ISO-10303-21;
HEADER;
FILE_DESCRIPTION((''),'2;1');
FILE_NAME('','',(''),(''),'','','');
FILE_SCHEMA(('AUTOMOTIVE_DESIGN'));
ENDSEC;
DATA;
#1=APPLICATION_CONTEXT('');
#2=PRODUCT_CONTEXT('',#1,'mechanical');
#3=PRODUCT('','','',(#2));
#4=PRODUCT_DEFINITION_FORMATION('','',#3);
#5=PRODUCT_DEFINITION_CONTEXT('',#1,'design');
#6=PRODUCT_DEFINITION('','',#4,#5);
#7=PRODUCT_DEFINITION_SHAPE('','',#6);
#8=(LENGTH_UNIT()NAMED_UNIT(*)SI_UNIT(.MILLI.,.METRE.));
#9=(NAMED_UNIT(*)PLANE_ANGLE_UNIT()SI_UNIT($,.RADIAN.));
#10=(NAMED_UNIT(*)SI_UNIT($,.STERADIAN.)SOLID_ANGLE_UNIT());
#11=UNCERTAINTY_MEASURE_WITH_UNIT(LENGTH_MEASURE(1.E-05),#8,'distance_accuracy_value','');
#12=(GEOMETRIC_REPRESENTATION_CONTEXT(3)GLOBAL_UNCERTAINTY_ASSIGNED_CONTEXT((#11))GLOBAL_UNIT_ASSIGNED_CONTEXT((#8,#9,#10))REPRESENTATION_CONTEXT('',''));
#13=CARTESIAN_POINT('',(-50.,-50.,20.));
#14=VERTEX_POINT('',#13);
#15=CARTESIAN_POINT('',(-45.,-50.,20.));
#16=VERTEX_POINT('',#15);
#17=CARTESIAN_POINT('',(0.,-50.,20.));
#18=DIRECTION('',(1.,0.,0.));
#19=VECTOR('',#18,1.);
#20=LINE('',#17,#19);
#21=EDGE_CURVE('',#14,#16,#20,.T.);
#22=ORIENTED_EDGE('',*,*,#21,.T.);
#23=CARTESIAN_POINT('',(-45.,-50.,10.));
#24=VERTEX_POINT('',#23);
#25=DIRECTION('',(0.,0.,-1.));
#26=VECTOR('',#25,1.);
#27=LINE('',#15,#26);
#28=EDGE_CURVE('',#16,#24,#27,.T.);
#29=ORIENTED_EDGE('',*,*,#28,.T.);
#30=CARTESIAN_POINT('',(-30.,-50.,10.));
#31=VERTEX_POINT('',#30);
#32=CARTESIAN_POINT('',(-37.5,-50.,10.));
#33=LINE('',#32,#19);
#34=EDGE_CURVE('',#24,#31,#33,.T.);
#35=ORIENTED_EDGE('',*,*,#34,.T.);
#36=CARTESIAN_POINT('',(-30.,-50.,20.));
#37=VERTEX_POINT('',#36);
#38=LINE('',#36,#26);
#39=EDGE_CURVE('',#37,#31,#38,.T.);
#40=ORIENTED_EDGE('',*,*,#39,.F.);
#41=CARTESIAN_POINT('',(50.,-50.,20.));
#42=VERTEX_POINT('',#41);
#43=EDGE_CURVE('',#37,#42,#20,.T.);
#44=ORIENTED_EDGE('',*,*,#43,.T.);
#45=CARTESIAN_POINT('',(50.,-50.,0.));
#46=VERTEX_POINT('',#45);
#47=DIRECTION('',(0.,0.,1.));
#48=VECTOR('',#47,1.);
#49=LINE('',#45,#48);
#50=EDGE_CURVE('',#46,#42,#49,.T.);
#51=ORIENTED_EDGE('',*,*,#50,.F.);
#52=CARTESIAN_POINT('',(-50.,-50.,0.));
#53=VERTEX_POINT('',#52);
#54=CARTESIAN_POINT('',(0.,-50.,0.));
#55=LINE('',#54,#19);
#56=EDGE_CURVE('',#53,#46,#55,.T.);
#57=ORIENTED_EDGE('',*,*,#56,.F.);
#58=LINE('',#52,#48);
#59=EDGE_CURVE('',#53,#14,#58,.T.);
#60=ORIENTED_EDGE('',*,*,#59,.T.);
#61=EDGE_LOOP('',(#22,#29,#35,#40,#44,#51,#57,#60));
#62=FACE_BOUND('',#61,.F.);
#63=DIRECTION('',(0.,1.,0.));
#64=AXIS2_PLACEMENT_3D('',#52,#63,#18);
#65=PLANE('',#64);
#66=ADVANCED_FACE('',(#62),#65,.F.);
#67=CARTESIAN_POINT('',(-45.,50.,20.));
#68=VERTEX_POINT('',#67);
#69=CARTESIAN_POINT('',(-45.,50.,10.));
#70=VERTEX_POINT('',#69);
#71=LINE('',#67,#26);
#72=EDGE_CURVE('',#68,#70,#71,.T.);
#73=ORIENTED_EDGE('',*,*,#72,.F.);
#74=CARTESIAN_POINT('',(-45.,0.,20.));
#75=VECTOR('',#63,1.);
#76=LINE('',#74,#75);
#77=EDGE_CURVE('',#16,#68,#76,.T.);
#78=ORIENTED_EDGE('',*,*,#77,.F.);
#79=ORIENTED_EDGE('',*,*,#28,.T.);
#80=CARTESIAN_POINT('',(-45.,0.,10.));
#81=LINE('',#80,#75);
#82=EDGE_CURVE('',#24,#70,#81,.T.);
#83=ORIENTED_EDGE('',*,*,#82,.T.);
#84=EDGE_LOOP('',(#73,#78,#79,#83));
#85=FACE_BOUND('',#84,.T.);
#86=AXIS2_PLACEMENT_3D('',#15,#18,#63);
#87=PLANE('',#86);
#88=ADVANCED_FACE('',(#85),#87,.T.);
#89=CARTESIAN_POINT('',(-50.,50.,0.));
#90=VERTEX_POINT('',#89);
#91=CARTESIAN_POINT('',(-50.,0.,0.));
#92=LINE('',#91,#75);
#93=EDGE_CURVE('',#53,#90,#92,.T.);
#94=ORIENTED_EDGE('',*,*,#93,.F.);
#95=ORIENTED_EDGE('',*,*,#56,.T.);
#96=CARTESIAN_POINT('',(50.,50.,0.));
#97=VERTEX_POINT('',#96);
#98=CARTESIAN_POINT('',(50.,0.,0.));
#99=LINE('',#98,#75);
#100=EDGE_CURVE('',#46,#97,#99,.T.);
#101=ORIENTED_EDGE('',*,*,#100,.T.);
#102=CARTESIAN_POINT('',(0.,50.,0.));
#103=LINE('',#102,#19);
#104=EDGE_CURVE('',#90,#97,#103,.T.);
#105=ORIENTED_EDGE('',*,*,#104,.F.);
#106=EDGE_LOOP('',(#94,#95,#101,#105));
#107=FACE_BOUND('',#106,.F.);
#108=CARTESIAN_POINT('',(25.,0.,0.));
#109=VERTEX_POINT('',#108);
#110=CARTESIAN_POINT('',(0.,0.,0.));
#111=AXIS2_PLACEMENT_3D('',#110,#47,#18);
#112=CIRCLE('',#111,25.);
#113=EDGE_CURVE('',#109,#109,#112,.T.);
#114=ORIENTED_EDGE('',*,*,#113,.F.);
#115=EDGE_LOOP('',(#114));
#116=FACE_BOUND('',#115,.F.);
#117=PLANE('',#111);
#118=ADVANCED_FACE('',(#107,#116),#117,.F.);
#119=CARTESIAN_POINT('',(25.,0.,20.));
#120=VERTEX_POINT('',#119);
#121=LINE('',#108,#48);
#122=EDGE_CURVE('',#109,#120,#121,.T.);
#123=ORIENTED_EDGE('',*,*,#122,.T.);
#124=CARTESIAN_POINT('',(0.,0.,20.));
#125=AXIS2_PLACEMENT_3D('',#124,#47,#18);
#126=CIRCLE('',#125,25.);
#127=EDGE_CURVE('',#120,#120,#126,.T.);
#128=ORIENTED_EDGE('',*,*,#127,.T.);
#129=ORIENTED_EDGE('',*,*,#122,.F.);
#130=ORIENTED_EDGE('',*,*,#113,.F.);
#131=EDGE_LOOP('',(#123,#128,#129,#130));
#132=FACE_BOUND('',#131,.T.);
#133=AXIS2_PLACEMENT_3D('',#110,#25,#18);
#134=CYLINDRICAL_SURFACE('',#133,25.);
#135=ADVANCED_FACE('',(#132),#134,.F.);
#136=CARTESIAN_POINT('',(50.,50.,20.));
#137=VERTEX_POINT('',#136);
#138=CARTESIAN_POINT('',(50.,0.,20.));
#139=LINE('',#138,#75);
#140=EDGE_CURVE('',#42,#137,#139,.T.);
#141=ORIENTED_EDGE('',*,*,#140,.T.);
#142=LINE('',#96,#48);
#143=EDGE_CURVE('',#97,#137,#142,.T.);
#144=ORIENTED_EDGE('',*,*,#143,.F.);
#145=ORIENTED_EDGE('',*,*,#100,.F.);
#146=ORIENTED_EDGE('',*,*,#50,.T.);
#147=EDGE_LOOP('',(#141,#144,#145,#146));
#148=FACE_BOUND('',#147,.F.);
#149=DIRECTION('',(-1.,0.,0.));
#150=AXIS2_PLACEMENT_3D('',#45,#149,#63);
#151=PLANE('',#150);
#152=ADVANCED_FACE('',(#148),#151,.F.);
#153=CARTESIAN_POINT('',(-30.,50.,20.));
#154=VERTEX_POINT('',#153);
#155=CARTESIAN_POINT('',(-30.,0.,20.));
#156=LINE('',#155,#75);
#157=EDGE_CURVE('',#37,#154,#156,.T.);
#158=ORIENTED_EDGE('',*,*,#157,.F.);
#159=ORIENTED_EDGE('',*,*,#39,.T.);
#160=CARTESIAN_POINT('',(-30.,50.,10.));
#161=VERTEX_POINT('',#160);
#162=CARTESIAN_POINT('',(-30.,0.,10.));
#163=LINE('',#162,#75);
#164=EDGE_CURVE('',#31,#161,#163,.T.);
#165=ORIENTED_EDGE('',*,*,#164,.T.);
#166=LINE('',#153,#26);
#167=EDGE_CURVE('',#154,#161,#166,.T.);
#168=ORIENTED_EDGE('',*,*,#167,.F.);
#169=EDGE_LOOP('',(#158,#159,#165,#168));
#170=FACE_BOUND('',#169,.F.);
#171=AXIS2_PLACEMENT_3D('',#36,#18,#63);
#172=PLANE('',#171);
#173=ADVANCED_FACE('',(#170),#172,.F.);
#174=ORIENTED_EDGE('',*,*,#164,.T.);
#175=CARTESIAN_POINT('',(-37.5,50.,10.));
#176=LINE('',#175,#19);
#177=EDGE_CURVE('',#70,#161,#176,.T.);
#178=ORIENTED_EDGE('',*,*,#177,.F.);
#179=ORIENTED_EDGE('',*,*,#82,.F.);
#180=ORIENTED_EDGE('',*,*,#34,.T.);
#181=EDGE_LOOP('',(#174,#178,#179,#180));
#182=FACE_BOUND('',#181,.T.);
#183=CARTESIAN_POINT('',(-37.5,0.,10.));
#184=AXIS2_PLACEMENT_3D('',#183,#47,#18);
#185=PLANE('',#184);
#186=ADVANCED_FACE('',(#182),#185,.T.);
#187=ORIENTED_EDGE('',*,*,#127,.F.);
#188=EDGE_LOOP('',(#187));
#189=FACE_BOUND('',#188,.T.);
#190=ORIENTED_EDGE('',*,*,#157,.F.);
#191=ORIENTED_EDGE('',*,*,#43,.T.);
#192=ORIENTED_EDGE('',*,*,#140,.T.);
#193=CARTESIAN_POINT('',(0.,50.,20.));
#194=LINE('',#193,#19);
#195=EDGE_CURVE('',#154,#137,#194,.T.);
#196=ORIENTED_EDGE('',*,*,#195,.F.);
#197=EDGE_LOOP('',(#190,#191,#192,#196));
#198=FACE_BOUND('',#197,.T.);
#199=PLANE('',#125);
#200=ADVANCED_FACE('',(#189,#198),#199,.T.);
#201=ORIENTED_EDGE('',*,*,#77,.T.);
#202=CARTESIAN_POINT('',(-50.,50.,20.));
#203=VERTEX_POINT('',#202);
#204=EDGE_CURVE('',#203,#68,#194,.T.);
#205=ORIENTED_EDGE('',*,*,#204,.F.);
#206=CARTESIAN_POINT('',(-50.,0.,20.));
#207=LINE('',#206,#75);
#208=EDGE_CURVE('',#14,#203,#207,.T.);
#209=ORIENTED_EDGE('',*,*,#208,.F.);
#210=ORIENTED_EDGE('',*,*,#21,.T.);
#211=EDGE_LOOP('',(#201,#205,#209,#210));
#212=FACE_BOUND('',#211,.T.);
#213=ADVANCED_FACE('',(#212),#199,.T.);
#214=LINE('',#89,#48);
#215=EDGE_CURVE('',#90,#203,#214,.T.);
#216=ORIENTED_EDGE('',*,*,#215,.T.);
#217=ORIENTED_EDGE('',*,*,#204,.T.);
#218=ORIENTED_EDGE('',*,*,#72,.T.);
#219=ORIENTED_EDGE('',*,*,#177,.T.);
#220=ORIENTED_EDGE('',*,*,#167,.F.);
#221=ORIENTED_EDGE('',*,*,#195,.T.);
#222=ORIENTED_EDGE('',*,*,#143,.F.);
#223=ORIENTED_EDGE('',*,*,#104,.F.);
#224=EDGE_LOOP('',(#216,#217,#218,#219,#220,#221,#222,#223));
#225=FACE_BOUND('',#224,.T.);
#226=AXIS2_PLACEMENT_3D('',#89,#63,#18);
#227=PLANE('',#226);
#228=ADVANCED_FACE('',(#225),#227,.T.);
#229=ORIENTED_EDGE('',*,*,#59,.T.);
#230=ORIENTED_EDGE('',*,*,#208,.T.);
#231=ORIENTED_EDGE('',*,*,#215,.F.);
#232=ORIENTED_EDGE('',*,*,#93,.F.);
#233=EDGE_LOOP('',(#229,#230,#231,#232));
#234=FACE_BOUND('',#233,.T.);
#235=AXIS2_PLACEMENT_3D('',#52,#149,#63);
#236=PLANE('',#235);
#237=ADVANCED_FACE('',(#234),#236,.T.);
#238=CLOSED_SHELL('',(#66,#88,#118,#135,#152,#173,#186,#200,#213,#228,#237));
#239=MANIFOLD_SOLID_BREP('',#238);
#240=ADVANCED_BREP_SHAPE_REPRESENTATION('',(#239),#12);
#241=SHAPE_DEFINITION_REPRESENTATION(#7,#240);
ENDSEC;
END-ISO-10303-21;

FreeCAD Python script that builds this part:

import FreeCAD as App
import Part
import Sketcher

V = App.Vector

doc = App.newDocument("Part")
body = doc.addObject("PartDesign::Body", "Body")

# Sketch on XY plane
sketch1 = body.newObject("Sketcher::SketchObject", "Sketch")
sketch1.AttachmentSupport = (doc.getObject("XY_Plane"), [""])
sketch1.MapMode = "FlatFace"
sketch1.addGeometry(Part.LineSegment(V(-50, 50, 0), V(-50, -50, 0)), False)
sketch1.addGeometry(Part.LineSegment(V(-50, -50, 0), V(50, -50, 0)), False)
sketch1.addGeometry(Part.LineSegment(V(50, -50, 0), V(50, 50, 0)), False)
sketch1.addGeometry(Part.LineSegment(V(50, 50, 0), V(-50, 50, 0)), False)
sketch1.addGeometry(Part.Circle(V(0, 0, 0), V(0, 0, 1), 25), False)
sketch1.addConstraint(Sketcher.Constraint("Coincident", 0, 2, 1, 1))
sketch1.addConstraint(Sketcher.Constraint("Coincident", 1, 2, 2, 1))
sketch1.addConstraint(Sketcher.Constraint("Coincident", 2, 2, 3, 1))
sketch1.addConstraint(Sketcher.Constraint("Coincident", 3, 2, 0, 1))
sketch1.addConstraint(Sketcher.Constraint("Vertical", 0))
sketch1.addConstraint(Sketcher.Constraint("Horizontal", 1))
sketch1.addConstraint(Sketcher.Constraint("Vertical", 2))
sketch1.addConstraint(Sketcher.Constraint("Horizontal", 3))
sketch1.addConstraint(Sketcher.Constraint("Coincident", 4, 3, -1, 1))
sketch1.addConstraint(Sketcher.Constraint("Symmetric", 0, 2, 2, 2, -1, 1))
sketch1.addConstraint(Sketcher.Constraint("Equal", 3, 0))
sketch1.addConstraint(Sketcher.Constraint("Diameter", 4, 50.0))
sketch1.addConstraint(Sketcher.Constraint("DistanceX", 1, 1, 1, 2, 100.0))
pad1 = body.newObject("PartDesign::Pad", "Pad")
pad1.Profile = sketch1
pad1.Length = 20

# Sketch on XY plane
sketch2 = body.newObject("Sketcher::SketchObject", "Sketch001")
sketch2.AttachmentSupport = (doc.getObject("XY_Plane"), [""])
sketch2.MapMode = "FlatFace"
sketch2.AttachmentOffset = App.Placement(V(0, 0, 20), App.Rotation())
sketch2.addGeometry(Part.LineSegment(V(-45, 50, 0), V(-45, -50, 0)), False)
sketch2.addGeometry(Part.LineSegment(V(-45, -50, 0), V(-30, -50, 0)), False)
sketch2.addGeometry(Part.LineSegment(V(-30, -50, 0), V(-30, 50, 0)), False)
sketch2.addGeometry(Part.LineSegment(V(-30, 50, 0), V(-45, 50, 0)), False)
sketch2.addConstraint(Sketcher.Constraint("Coincident", 0, 2, 1, 1))
sketch2.addConstraint(Sketcher.Constraint("Coincident", 1, 2, 2, 1))
sketch2.addConstraint(Sketcher.Constraint("Coincident", 2, 2, 3, 1))
sketch2.addConstraint(Sketcher.Constraint("Coincident", 3, 2, 0, 1))
sketch2.addConstraint(Sketcher.Constraint("Vertical", 0))
sketch2.addConstraint(Sketcher.Constraint("Horizontal", 1))
sketch2.addConstraint(Sketcher.Constraint("Vertical", 2))
sketch2.addConstraint(Sketcher.Constraint("Horizontal", 3))
sketch2.addConstraint(Sketcher.Constraint("DistanceX", 1, 1, 1, 2, 15.0))
sketch2.addConstraint(Sketcher.Constraint("DistanceY", 0, 2, 0, 1, 100.0))
sketch2.addConstraint(Sketcher.Constraint("DistanceX", 0, 2, -1, 1, 45.0))
sketch2.addConstraint(Sketcher.Constraint("DistanceY", 0, 2, -1, 1, 50.0))
pocket1 = body.newObject("PartDesign::Pocket", "Pocket")
pocket1.Profile = sketch2
pocket1.Length = 10

doc.recompute()
